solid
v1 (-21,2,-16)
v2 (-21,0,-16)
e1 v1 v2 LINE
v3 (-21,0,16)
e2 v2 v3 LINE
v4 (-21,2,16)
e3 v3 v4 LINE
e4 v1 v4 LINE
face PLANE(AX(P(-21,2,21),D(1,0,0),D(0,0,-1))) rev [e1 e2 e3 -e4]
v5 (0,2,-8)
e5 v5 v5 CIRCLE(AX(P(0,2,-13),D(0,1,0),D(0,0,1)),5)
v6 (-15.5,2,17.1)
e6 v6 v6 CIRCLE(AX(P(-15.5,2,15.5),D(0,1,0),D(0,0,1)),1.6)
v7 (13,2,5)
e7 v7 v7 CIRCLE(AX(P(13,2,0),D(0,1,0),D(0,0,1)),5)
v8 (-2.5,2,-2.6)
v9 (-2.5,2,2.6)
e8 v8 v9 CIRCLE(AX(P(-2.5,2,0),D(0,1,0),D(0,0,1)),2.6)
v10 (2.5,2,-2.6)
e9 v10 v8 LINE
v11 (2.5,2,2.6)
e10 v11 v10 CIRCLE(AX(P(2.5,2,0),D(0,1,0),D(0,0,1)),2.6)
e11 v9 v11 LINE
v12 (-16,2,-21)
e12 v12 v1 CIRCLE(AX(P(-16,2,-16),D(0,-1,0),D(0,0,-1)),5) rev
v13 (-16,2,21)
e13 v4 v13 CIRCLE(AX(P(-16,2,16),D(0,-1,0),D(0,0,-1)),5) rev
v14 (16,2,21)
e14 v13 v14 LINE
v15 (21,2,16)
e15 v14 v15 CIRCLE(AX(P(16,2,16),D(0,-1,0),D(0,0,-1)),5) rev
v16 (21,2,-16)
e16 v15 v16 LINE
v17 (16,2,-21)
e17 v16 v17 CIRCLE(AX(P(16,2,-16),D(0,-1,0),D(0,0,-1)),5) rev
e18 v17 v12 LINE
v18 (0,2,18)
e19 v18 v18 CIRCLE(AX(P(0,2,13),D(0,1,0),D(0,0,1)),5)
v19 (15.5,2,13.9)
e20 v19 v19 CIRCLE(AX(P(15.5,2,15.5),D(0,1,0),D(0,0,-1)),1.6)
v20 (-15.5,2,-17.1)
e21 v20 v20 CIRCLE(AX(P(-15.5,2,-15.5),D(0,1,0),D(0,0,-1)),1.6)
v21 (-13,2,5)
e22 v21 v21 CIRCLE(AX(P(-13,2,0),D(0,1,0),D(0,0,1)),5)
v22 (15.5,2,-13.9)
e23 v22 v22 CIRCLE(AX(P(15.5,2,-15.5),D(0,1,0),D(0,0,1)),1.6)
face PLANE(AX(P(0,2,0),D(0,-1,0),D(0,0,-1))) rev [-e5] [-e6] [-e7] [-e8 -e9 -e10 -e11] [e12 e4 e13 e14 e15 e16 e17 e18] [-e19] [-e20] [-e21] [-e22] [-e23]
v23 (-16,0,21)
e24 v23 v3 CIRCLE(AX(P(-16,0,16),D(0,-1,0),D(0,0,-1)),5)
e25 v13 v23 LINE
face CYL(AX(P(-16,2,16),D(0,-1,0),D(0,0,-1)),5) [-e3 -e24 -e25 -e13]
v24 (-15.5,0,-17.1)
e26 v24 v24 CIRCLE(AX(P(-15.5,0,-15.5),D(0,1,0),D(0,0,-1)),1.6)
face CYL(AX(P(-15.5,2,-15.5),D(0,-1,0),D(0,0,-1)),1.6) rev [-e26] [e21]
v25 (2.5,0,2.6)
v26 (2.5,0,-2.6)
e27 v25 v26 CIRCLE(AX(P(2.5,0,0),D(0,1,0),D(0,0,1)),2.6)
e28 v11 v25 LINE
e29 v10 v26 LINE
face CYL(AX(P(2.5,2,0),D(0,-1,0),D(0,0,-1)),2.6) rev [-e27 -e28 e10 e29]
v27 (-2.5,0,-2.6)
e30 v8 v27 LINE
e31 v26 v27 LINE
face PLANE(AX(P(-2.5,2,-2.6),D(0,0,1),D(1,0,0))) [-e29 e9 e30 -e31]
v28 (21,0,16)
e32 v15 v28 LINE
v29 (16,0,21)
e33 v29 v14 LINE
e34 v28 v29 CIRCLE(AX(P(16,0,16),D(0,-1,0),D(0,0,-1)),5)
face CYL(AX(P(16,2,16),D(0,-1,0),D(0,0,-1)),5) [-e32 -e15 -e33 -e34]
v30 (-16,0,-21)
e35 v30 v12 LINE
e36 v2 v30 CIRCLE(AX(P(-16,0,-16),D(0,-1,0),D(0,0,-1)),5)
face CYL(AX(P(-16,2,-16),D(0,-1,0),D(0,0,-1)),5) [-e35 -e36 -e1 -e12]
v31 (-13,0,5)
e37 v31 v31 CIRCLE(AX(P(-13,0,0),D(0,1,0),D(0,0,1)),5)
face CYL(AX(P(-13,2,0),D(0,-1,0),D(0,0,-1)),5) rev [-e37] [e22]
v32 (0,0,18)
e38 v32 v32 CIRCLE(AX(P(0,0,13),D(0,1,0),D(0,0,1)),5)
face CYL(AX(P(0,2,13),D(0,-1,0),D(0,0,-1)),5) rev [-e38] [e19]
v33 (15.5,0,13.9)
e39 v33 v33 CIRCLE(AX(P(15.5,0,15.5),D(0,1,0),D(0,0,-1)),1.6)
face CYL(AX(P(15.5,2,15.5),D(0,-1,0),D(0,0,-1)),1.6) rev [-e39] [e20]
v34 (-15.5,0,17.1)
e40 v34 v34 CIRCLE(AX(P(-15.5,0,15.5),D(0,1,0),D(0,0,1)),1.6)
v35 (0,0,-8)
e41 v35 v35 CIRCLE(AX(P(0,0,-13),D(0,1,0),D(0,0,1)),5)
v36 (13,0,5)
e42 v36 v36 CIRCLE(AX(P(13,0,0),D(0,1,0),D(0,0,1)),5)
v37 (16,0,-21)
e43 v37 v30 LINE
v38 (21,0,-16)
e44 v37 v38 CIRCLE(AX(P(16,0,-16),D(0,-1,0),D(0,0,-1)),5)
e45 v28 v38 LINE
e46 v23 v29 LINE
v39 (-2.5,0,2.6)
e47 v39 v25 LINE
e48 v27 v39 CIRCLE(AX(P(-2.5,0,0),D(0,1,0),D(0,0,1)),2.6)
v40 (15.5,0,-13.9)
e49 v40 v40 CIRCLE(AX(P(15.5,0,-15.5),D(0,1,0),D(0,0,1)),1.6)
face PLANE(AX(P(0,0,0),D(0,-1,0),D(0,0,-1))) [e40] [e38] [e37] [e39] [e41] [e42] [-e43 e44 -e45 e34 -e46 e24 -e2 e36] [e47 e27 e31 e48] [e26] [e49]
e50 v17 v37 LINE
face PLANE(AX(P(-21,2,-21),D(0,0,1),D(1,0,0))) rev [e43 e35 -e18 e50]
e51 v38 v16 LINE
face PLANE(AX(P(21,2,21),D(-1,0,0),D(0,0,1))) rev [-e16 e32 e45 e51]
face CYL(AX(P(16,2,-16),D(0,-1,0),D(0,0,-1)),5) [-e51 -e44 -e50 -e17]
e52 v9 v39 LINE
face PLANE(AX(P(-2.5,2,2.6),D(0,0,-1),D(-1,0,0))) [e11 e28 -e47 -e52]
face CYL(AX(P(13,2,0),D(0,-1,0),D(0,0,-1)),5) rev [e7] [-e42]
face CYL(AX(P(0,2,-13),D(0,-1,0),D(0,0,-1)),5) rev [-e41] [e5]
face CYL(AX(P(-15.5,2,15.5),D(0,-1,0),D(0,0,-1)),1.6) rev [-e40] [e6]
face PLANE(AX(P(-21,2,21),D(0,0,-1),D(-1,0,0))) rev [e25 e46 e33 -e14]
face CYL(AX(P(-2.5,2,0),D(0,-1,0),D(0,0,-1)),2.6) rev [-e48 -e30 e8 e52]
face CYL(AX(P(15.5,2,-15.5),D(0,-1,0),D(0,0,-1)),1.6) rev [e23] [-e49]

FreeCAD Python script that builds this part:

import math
import FreeCAD as App
import Part
import Sketcher
from FreeCAD import Vector
Q = App.Units.Quantity


def edges_at(feature, points):
    """Names of the edges that pass closest to the given points."""
    edges = feature.Shape.Edges
    near = lambda p: min(range(len(edges)), key=lambda i: edges[i].distToShape(Part.Vertex(*p))[0])
    return sorted({f"Edge{near(p) + 1}" for p in points})

doc = App.newDocument("Part")
body = doc.addObject("PartDesign::Body", "Body")

# Sketch on XZ plane
sketch1 = doc.addObject("Sketcher::SketchObject", "Sketch")
body.addObject(sketch1)
sketch1.AttachmentSupport = (doc.XZ_Plane, [""])
sketch1.MapMode = "FlatFace"
sketch1.addGeometry(Part.LineSegment(Vector(-21, -21, 0), Vector(-21, 21, 0)), False)
sketch1.addGeometry(Part.LineSegment(Vector(-21, 21, 0), Vector(21, 21, 0)), False)
sketch1.addGeometry(Part.LineSegment(Vector(21, 21, 0), Vector(21, -21, 0)), False)
sketch1.addGeometry(Part.LineSegment(Vector(21, -21, 0), Vector(-21, -21, 0)), False)
sketch1.addGeometry(Part.Circle(Vector(-15.5, 15.5, 0), Vector(0, 0, 1), 1.6), False)
sketch1.addGeometry(Part.Circle(Vector(0, 13, 0), Vector(0, 0, 1), 5), False)
sketch1.addGeometry(Part.Circle(Vector(15.5, 15.5, 0), Vector(0, 0, 1), 1.6), False)
sketch1.addGeometry(Part.Circle(Vector(-13, 0, 0), Vector(0, 0, 1), 5), False)
sketch1.addGeometry(Part.Circle(Vector(-15.5, -15.5, 0), Vector(0, 0, 1), 1.6), False)
sketch1.addGeometry(Part.ArcOfCircle(Part.Circle(Vector(-2.5, 0, 0), Vector(0, 0, 1), 2.6), math.radians(90), math.radians(270)), False)
sketch1.addGeometry(Part.LineSegment(Vector(-2.5, -2.6, 0), Vector(2.5, -2.6, 0)), False)
sketch1.addGeometry(Part.ArcOfCircle(Part.Circle(Vector(2.5, 0, 0), Vector(0, 0, 1), 2.6), math.radians(-90), math.radians(90)), False)
sketch1.addGeometry(Part.LineSegment(Vector(2.5, 2.6, 0), Vector(-2.5, 2.6, 0)), False)
sketch1.addGeometry(Part.Circle(Vector(13, 0, 0), Vector(0, 0, 1), 5), False)
sketch1.addGeometry(Part.Circle(Vector(0, -13, 0), Vector(0, 0, 1), 5), False)
sketch1.addGeometry(Part.Circle(Vector(15.5, -15.5, 0), Vector(0, 0, 1), 1.6), False)
sketch1.addConstraint(Sketcher.Constraint("Coincident", 0, 2, 1, 1))
sketch1.addConstraint(Sketcher.Constraint("Coincident", 1, 2, 2, 1))
sketch1.addConstraint(Sketcher.Constraint("Coincident", 2, 2, 3, 1))
sketch1.addConstraint(Sketcher.Constraint("Coincident", 3, 2, 0, 1))
sketch1.addConstraint(Sketcher.Constraint("Tangent", 9, 2, 10, 1))
sketch1.addConstraint(Sketcher.Constraint("Tangent", 10, 2, 11, 1))
sketch1.addConstraint(Sketcher.Constraint("Tangent", 11, 2, 12, 1))
sketch1.addConstraint(Sketcher.Constraint("Tangent", 12, 2, 9, 1))
sketch1.addConstraint(Sketcher.Constraint("Vertical", 0))
sketch1.addConstraint(Sketcher.Constraint("Horizontal", 1))
sketch1.addConstraint(Sketcher.Constraint("Vertical", 2))
sketch1.addConstraint(Sketcher.Constraint("Horizontal", 3))
sketch1.addConstraint(Sketcher.Constraint("Horizontal", 10))
sketch1.addConstraint(Sketcher.Constraint("Horizontal", 12))
sketch1.addConstraint(Sketcher.Constraint("Equal", 4, 6))
sketch1.addConstraint(Sketcher.Constraint("Equal", 5, 7))
sketch1.addConstraint(Sketcher.Constraint("Equal", 6, 8))
sketch1.addConstraint(Sketcher.Constraint("Equal", 7, 13))
sketch1.addConstraint(Sketcher.Constraint("Equal", 13, 14))
sketch1.addConstraint(Sketcher.Constraint("Equal", 8, 15))
sketch1.addConstraint(Sketcher.Constraint("Symmetric", 6, 3, 8, 3, -1, 1))
sketch1.addConstraint(Sketcher.Constraint("Symmetric", 9, 3, 11, 3, -1, 1))
sketch1.addConstraint(Sketcher.Constraint("Symmetric", 7, 3, 13, 3, -1, 1))
sketch1.addConstraint(Sketcher.Constraint("Symmetric", 5, 3, 14, 3, -1, 1))
sketch1.addConstraint(Sketcher.Constraint("Symmetric", 4, 3, 15, 3, -1, 1))
sketch1.addConstraint(Sketcher.Constraint("Symmetric", 0, 2, 2, 2, -1, 1))
sketch1.addConstraint(Sketcher.Constraint("Symmetric", 4, 3, 6, 3, -2))
sketch1.addConstraint(Sketcher.Constraint("PointOnObject", 5, 3, -2))
sketch1.addConstraint(Sketcher.Constraint("PointOnObject", 7, 3, -1))
sketch1.addConstraint(Sketcher.Constraint("Equal", 3, 0))
sketch1.addConstraint(Sketcher.Constraint("Diameter", 5, Q("10 mm")))
sketch1.addConstraint(Sketcher.Constraint("Diameter", 4, Q("3.2 mm")))
sketch1.addConstraint(Sketcher.Constraint("Radius", 9, Q("2.6 mm")))
sketch1.addConstraint(Sketcher.Constraint("DistanceX", 1, 1, 1, 2, Q("42 mm")))
sketch1.addConstraint(Sketcher.Constraint("DistanceX", 10, 1, 10, 2, Q("5 mm")))
sketch1.addConstraint(Sketcher.Constraint("DistanceY", -1, 1, 5, 3, Q("13 mm")))
sketch1.addConstraint(Sketcher.Constraint("DistanceX", 7, 3, -1, 1, Q("13 mm")))
sketch1.addConstraint(Sketcher.Constraint("DistanceX", 4, 3, 6, 3, Q("31 mm")))
sketch1.addConstraint(Sketcher.Constraint("DistanceY", 8, 3, 4, 3, Q("31 mm")))
pad1 = doc.addObject("PartDesign::Pad", "Pad")
body.addObject(pad1)
pad1.Profile = sketch1
pad1.Length = 2
pad1.Reversed = True
doc.recompute()

fillet = doc.addObject("PartDesign::Fillet", "Fillet")
body.addObject(fillet)
fillet.Base = (pad1, edges_at(pad1, [
    (21, 1, 21),
    (-21, 1, 21),
    (-21, 1, -21),
    (21, 1, -21),
]))
fillet.Radius = 5

doc.recompute()
